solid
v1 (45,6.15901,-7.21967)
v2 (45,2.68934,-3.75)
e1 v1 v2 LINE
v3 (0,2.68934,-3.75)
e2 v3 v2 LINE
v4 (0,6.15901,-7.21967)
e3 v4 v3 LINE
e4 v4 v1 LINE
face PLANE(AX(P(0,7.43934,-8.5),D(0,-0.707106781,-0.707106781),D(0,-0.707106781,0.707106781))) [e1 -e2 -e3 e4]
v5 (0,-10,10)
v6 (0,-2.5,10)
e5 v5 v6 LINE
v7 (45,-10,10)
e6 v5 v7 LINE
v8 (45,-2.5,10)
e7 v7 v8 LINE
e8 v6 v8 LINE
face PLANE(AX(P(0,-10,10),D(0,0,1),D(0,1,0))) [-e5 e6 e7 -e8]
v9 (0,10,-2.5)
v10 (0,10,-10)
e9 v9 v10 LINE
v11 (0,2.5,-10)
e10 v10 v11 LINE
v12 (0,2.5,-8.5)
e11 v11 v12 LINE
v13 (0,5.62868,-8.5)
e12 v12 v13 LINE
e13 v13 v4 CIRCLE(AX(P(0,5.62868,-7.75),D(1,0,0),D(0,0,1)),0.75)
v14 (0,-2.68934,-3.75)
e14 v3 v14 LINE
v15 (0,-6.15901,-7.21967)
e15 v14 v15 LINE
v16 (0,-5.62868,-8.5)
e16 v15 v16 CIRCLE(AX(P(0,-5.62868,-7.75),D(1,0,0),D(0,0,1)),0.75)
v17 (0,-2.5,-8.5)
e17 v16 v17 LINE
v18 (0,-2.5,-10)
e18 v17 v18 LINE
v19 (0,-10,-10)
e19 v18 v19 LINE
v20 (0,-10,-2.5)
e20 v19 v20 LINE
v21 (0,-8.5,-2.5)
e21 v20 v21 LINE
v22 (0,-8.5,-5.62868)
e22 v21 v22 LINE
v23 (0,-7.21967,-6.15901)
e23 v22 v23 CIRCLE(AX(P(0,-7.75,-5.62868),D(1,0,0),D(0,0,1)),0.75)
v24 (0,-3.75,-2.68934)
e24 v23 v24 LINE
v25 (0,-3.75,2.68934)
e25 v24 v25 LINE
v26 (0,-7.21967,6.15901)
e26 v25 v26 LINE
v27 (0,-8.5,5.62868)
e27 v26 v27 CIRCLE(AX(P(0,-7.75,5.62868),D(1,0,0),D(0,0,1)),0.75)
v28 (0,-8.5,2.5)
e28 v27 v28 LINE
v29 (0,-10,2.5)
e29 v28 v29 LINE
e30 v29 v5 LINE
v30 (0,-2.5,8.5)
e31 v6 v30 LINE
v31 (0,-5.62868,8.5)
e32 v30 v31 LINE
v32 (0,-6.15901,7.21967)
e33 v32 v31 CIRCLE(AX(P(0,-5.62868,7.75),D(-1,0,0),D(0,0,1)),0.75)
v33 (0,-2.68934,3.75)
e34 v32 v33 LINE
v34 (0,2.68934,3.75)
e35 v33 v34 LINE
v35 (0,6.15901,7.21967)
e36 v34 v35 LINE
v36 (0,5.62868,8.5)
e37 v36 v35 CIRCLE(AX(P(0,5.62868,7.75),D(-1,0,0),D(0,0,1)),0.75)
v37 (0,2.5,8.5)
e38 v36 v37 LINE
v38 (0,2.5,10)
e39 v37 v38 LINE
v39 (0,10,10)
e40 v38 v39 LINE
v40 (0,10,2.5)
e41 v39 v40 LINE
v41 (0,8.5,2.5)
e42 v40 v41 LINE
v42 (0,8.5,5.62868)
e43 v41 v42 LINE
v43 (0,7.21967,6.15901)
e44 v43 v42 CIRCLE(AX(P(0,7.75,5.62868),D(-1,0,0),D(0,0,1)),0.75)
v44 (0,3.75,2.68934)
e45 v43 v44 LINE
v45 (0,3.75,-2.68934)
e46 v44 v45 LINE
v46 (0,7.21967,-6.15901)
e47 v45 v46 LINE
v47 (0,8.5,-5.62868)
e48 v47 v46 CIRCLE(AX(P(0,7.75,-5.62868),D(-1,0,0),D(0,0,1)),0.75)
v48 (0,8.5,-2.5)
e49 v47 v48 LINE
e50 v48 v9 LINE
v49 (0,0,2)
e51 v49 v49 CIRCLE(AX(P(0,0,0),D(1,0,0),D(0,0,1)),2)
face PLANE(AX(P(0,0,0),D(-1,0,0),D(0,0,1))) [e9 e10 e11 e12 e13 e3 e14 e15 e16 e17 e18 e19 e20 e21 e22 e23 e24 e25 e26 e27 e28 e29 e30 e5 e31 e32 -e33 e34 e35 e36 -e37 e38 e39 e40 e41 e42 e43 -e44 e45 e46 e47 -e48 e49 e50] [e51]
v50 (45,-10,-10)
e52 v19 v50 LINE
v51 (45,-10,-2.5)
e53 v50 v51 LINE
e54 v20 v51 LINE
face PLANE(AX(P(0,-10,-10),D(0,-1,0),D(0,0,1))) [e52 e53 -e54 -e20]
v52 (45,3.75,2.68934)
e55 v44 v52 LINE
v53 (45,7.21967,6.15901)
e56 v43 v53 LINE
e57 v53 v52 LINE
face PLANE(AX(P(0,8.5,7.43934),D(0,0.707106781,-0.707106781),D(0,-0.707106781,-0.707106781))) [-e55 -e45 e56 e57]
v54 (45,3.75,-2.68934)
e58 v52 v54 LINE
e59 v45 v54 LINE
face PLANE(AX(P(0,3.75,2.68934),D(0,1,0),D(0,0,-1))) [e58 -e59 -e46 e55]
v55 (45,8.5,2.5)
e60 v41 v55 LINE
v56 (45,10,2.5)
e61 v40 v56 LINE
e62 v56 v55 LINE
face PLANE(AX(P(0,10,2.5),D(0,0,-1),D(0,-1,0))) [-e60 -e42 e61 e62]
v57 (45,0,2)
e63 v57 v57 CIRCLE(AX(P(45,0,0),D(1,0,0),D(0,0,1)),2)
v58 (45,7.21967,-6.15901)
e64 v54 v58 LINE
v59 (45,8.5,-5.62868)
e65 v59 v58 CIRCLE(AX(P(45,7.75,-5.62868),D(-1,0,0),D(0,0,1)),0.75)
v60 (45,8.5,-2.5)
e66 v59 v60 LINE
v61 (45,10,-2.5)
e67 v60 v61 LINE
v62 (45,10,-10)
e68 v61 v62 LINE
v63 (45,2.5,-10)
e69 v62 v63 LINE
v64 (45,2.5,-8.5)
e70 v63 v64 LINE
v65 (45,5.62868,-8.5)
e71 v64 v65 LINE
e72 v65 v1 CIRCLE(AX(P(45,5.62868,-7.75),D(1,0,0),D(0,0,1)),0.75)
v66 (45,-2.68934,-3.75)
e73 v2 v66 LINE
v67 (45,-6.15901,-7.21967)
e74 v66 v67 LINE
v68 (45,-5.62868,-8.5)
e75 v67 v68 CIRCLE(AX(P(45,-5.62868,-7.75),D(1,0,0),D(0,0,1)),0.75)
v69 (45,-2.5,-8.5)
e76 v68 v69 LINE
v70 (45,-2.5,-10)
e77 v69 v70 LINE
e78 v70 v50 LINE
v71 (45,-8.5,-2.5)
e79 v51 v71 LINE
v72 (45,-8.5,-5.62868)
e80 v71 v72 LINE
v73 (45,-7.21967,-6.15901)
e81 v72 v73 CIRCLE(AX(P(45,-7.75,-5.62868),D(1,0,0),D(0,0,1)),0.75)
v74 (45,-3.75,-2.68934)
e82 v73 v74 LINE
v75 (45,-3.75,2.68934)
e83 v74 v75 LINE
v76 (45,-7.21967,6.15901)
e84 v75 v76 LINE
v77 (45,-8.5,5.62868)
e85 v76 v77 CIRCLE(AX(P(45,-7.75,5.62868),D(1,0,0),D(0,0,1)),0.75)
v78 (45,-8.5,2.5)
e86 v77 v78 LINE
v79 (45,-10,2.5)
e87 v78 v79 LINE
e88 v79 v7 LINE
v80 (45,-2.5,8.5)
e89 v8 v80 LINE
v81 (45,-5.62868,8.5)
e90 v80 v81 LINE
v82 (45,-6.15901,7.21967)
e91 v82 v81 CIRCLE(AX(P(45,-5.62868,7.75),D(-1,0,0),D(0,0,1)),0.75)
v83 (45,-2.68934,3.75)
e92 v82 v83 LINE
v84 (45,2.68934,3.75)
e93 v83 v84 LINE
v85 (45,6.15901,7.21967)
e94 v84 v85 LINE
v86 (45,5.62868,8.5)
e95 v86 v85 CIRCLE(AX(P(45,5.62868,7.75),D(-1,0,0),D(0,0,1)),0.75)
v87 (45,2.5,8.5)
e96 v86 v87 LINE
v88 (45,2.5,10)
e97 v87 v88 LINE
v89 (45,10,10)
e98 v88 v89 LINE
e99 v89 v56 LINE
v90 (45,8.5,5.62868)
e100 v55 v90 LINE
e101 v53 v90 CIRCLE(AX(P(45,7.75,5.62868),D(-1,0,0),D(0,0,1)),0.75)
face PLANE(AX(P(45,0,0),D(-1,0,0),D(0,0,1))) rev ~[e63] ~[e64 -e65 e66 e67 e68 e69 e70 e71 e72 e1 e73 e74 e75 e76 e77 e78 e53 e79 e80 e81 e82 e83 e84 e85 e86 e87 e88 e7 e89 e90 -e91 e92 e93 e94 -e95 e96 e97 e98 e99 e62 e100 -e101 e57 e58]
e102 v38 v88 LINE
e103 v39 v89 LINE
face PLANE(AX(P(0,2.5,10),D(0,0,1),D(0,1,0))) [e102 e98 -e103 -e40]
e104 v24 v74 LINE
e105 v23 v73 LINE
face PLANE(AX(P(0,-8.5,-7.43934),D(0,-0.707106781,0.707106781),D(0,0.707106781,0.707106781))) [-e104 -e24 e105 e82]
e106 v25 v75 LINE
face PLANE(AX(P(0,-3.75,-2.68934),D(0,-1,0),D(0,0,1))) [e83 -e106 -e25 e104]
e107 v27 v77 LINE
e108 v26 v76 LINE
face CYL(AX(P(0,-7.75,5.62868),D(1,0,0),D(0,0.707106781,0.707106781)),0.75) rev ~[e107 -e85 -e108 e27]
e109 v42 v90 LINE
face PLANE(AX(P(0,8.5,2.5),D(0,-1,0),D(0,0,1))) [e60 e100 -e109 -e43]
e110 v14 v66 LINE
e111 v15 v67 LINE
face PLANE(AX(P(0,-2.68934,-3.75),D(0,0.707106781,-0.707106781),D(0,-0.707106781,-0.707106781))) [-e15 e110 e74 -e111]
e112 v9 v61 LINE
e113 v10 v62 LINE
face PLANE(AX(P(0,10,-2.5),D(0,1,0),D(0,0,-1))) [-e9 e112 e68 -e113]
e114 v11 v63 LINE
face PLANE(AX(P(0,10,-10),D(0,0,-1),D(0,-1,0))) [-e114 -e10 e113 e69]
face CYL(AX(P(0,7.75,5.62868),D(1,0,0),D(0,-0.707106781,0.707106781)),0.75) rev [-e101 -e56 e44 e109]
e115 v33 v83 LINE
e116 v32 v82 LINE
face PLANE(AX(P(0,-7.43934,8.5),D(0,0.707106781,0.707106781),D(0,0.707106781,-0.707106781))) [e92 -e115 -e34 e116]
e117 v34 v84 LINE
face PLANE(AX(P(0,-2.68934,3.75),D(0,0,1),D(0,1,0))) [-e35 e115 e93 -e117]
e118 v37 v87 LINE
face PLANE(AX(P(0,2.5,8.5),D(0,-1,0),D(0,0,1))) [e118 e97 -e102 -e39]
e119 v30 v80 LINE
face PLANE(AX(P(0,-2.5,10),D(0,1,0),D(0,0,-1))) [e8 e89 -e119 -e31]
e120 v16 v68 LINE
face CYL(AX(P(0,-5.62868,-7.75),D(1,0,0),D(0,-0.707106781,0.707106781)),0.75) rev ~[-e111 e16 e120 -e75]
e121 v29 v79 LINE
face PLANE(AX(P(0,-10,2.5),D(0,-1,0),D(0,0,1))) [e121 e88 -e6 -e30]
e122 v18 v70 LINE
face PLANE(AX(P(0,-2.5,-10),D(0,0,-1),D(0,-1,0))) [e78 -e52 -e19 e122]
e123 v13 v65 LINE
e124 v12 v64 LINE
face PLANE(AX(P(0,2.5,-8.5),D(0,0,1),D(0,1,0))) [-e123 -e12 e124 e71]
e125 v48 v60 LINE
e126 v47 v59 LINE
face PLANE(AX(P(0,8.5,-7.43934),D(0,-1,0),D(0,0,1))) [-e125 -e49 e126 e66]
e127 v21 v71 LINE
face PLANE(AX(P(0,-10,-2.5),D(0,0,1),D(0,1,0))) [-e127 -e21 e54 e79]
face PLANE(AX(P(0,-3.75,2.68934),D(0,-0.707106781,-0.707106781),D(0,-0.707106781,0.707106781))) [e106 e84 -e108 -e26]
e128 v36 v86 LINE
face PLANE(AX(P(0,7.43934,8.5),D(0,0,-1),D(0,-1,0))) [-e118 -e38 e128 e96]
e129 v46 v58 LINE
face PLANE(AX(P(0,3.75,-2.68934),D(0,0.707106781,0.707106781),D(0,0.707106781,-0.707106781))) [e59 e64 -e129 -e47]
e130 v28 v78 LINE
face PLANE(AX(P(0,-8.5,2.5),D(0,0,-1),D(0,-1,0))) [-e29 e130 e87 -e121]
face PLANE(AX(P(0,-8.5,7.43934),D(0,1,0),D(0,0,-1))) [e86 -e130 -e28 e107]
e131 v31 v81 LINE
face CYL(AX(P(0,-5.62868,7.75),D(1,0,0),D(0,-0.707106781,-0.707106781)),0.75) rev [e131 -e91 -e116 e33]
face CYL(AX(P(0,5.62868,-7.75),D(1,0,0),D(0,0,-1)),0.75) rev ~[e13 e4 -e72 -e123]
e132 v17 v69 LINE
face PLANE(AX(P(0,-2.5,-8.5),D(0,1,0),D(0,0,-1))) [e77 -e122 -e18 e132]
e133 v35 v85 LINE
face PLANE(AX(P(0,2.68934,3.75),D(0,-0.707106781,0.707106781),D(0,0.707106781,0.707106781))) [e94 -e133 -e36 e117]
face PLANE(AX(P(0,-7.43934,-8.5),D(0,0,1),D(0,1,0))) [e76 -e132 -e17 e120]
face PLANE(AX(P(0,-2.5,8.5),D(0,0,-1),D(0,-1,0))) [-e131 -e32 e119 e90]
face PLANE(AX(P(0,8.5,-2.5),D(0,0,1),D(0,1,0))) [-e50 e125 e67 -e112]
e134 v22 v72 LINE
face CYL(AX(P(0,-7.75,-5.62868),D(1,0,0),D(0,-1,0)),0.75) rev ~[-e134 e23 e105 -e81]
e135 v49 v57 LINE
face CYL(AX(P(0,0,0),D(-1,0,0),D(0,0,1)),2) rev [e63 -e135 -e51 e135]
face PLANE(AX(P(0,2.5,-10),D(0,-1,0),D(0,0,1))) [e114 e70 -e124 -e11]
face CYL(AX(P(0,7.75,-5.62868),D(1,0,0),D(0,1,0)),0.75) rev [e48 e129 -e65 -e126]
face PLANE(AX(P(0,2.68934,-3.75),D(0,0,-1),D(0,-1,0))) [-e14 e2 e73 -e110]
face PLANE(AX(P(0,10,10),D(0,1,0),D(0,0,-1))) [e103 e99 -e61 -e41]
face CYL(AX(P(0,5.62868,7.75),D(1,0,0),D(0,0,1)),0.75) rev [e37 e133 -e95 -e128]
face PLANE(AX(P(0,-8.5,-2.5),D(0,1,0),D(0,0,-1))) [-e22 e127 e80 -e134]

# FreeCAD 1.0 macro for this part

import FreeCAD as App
import Part
import Sketcher
from FreeCAD import Vector
Q = App.Units.Quantity


def edges_at(feature, points):
    """Names of the edges that pass closest to the given points."""
    edges = feature.Shape.Edges
    near = lambda p: min(range(len(edges)), key=lambda i: edges[i].distToShape(Part.Vertex(*p))[0])
    return sorted({f"Edge{near(p) + 1}" for p in points})

doc = App.newDocument("Part")
body = doc.addObject("PartDesign::Body", "Body")

# Sketch on YZ plane
sketch1 = body.newObject("Sketcher::SketchObject", "Sketch")
sketch1.AttachmentSupport = (doc.getObject("YZ_Plane"), [""])
sketch1.MapMode = "FlatFace"
sketch1.addGeometry([
    Part.LineSegment(Vector(10, -10, 0), Vector(10, -2.5, 0)),  # 0
    Part.LineSegment(Vector(10, -2.5, 0), Vector(8.5, -2.5, 0)),  # 1
    Part.LineSegment(Vector(8.5, -2.5, 0), Vector(8.5, -7.43934, 0)),  # 2
    Part.LineSegment(Vector(8.5, -7.43934, 0), Vector(3.75, -2.68934, 0)),  # 3
    Part.LineSegment(Vector(3.75, -2.68934, 0), Vector(3.75, 2.68934, 0)),  # 4
    Part.LineSegment(Vector(3.75, 2.68934, 0), Vector(8.5, 7.43934, 0)),  # 5
    Part.LineSegment(Vector(8.5, 7.43934, 0), Vector(8.5, 2.5, 0)),  # 6
    Part.LineSegment(Vector(8.5, 2.5, 0), Vector(10, 2.5, 0)),  # 7
    Part.LineSegment(Vector(10, 2.5, 0), Vector(10, 10, 0)),  # 8
    Part.LineSegment(Vector(10, 10, 0), Vector(2.5, 10, 0)),  # 9
    Part.LineSegment(Vector(2.5, 10, 0), Vector(2.5, 8.5, 0)),  # 10
    Part.LineSegment(Vector(2.5, 8.5, 0), Vector(7.43934, 8.5, 0)),  # 11
    Part.LineSegment(Vector(7.43934, 8.5, 0), Vector(2.68934, 3.75, 0)),  # 12
    Part.LineSegment(Vector(2.68934, 3.75, 0), Vector(-2.68934, 3.75, 0)),  # 13
    Part.LineSegment(Vector(-2.68934, 3.75, 0), Vector(-7.43934, 8.5, 0)),  # 14
    Part.LineSegment(Vector(-7.43934, 8.5, 0), Vector(-2.5, 8.5, 0)),  # 15
    Part.LineSegment(Vector(-2.5, 8.5, 0), Vector(-2.5, 10, 0)),  # 16
    Part.LineSegment(Vector(-2.5, 10, 0), Vector(-10, 10, 0)),  # 17
    Part.LineSegment(Vector(-10, 10, 0), Vector(-10, 2.5, 0)),  # 18
    Part.LineSegment(Vector(-10, 2.5, 0), Vector(-8.5, 2.5, 0)),  # 19
    Part.LineSegment(Vector(-8.5, 2.5, 0), Vector(-8.5, 7.43934, 0)),  # 20
    Part.LineSegment(Vector(-8.5, 7.43934, 0), Vector(-3.75, 2.68934, 0)),  # 21
    Part.LineSegment(Vector(-3.75, 2.68934, 0), Vector(-3.75, -2.68934, 0)),  # 22
    Part.LineSegment(Vector(-3.75, -2.68934, 0), Vector(-8.5, -7.43934, 0)),  # 23
    Part.LineSegment(Vector(-8.5, -7.43934, 0), Vector(-8.5, -2.5, 0)),  # 24
    Part.LineSegment(Vector(-8.5, -2.5, 0), Vector(-10, -2.5, 0)),  # 25
    Part.LineSegment(Vector(-10, -2.5, 0), Vector(-10, -10, 0)),  # 26
    Part.LineSegment(Vector(-10, -10, 0), Vector(-2.5, -10, 0)),  # 27
    Part.LineSegment(Vector(-2.5, -10, 0), Vector(-2.5, -8.5, 0)),  # 28
    Part.LineSegment(Vector(-2.5, -8.5, 0), Vector(-7.43934, -8.5, 0)),  # 29
    Part.LineSegment(Vector(-7.43934, -8.5, 0), Vector(-2.68934, -3.75, 0)),  # 30
    Part.LineSegment(Vector(-2.68934, -3.75, 0), Vector(2.68934, -3.75, 0)),  # 31
    Part.LineSegment(Vector(2.68934, -3.75, 0), Vector(7.43934, -8.5, 0)),  # 32
    Part.LineSegment(Vector(7.43934, -8.5, 0), Vector(2.5, -8.5, 0)),  # 33
    Part.LineSegment(Vector(2.5, -8.5, 0), Vector(2.5, -10, 0)),  # 34
    Part.LineSegment(Vector(2.5, -10, 0), Vector(10, -10, 0)),  # 35
    Part.Circle(Vector(0, 0, 0), Vector(0, 0, 1), 2),  # 36
], False)
sketch1.addConstraint([
    Sketcher.Constraint("Coincident", 0, 2, 1, 1),
    Sketcher.Constraint("Coincident", 1, 2, 2, 1),
    Sketcher.Constraint("Coincident", 2, 2, 3, 1),
    Sketcher.Constraint("Coincident", 3, 2, 4, 1),
    Sketcher.Constraint("Coincident", 4, 2, 5, 1),
    Sketcher.Constraint("Coincident", 5, 2, 6, 1),
    Sketcher.Constraint("Coincident", 6, 2, 7, 1),
    Sketcher.Constraint("Coincident", 7, 2, 8, 1),
    Sketcher.Constraint("Coincident", 8, 2, 9, 1),
    Sketcher.Constraint("Coincident", 9, 2, 10, 1),
    Sketcher.Constraint("Coincident", 10, 2, 11, 1),
    Sketcher.Constraint("Coincident", 11, 2, 12, 1),
    Sketcher.Constraint("Coincident", 12, 2, 13, 1),
    Sketcher.Constraint("Coincident", 13, 2, 14, 1),
    Sketcher.Constraint("Coincident", 14, 2, 15, 1),
    Sketcher.Constraint("Coincident", 15, 2, 16, 1),
    Sketcher.Constraint("Coincident", 16, 2, 17, 1),
    Sketcher.Constraint("Coincident", 17, 2, 18, 1),
    Sketcher.Constraint("Coincident", 18, 2, 19, 1),
    Sketcher.Constraint("Coincident", 19, 2, 20, 1),
    Sketcher.Constraint("Coincident", 20, 2, 21, 1),
    Sketcher.Constraint("Coincident", 21, 2, 22, 1),
    Sketcher.Constraint("Coincident", 22, 2, 23, 1),
    Sketcher.Constraint("Coincident", 23, 2, 24, 1),
    Sketcher.Constraint("Coincident", 24, 2, 25, 1),
    Sketcher.Constraint("Coincident", 25, 2, 26, 1),
    Sketcher.Constraint("Coincident", 26, 2, 27, 1),
    Sketcher.Constraint("Coincident", 27, 2, 28, 1),
    Sketcher.Constraint("Coincident", 28, 2, 29, 1),
    Sketcher.Constraint("Coincident", 29, 2, 30, 1),
    Sketcher.Constraint("Coincident", 30, 2, 31, 1),
    Sketcher.Constraint("Coincident", 31, 2, 32, 1),
    Sketcher.Constraint("Coincident", 32, 2, 33, 1),
    Sketcher.Constraint("Coincident", 33, 2, 34, 1),
    Sketcher.Constraint("Coincident", 34, 2, 35, 1),
    Sketcher.Constraint("Coincident", 35, 2, 0, 1),
    Sketcher.Constraint("Vertical", 0),
    Sketcher.Constraint("Horizontal", 1),
    Sketcher.Constraint("Vertical", 2),
    Sketcher.Constraint("Vertical", 4),
    Sketcher.Constraint("Vertical", 6),
    Sketcher.Constraint("Horizontal", 7),
    Sketcher.Constraint("Vertical", 8),
    Sketcher.Constraint("Horizontal", 9),
    Sketcher.Constraint("Vertical", 10),
    Sketcher.Constraint("Horizontal", 11),
    Sketcher.Constraint("Horizontal", 13),
    Sketcher.Constraint("Horizontal", 15),
    Sketcher.Constraint("Vertical", 16),
    Sketcher.Constraint("Horizontal", 17),
    Sketcher.Constraint("Vertical", 18),
    Sketcher.Constraint("Horizontal", 19),
    Sketcher.Constraint("Vertical", 20),
    Sketcher.Constraint("Vertical", 22),
    Sketcher.Constraint("Vertical", 24),
    Sketcher.Constraint("Horizontal", 25),
    Sketcher.Constraint("Vertical", 26),
    Sketcher.Constraint("Horizontal", 27),
    Sketcher.Constraint("Vertical", 28),
    Sketcher.Constraint("Horizontal", 29),
    Sketcher.Constraint("Horizontal", 31),
    Sketcher.Constraint("Horizontal", 33),
    Sketcher.Constraint("Vertical", 34),
    Sketcher.Constraint("Horizontal", 35),
    Sketcher.Constraint("Coincident", 36, 3, -1, 1),
    Sketcher.Constraint("Symmetric", 0, 2, 18, 2, -1, 1),
    Sketcher.Constraint("Symmetric", 2, 2, 20, 2, -1, 1),
    Sketcher.Constraint("Symmetric", 3, 2, 21, 2, -1, 1),
    Sketcher.Constraint("Symmetric", 5, 2, 23, 2, -1, 1),
    Sketcher.Constraint("Symmetric", 7, 2, 25, 2, -1, 1),
    Sketcher.Constraint("Symmetric", 9, 2, 27, 2, -1, 1),
    Sketcher.Constraint("Symmetric", 11, 2, 29, 2, -1, 1),
    Sketcher.Constraint("Symmetric", 12, 2, 30, 2, -1, 1),
    Sketcher.Constraint("Symmetric", 14, 2, 32, 2, -1, 1),
    Sketcher.Constraint("Symmetric", 16, 2, 34, 2, -1, 1),
    Sketcher.Constraint("Symmetric", 11, 2, 14, 2, -2),
    Sketcher.Constraint("Symmetric", 9, 2, 16, 2, -2),
    Sketcher.Constraint("Symmetric", 7, 2, 18, 2, -2),
    Sketcher.Constraint("Symmetric", 5, 2, 20, 2, -2),
    Sketcher.Constraint("Perpendicular", 3, 5),
    Sketcher.Constraint("Parallel", 5, 12),
    Sketcher.Constraint("Perpendicular", 12, 14),
    Sketcher.Constraint("Perpendicular", 21, 23),
    Sketcher.Constraint("Perpendicular", 30, 32),
    Sketcher.Constraint("Horizontal", 4, 2, 21, 2),
    Sketcher.Constraint("Equal", 35, 0),
    Sketcher.Constraint("Equal", 33, 2),
    Sketcher.Constraint("Equal", 31, 4),
    Sketcher.Constraint("Equal", 25, 10),
    Sketcher.Constraint("Equal", 5, 12),
    Sketcher.Constraint("Diameter", 36, Q("4 mm")),
    Sketcher.Constraint("DistanceX", 1, 2, 1, 1, Q("1.5 mm")),
    Sketcher.Constraint("DistanceX", 9, 2, 9, 1, Q("7.5 mm")),
    Sketcher.Constraint("DistanceX", -1, 1, 0, 2, Q("10 mm")),
    Sketcher.Constraint("DistanceX", 22, 2, 3, 2, Q("7.5 mm")),
    Sketcher.Constraint("DistanceX", 11, 1, 11, 2, Q("4.93934 mm")),
])
pad1 = body.newObject("PartDesign::Pad", "Pad")
pad1.Profile = sketch1
pad1.Length = 45
doc.recompute()

fillet = body.newObject("PartDesign::Fillet", "Fillet")
fillet.Base = (pad1, edges_at(pad1, [
    (22.5, 7.439, -8.5),
    (22.5, -7.439, -8.5),
    (22.5, -8.5, -7.439),
    (22.5, -8.5, 7.439),
    (22.5, -7.439, 8.5),
    (22.5, 7.439, 8.5),
    (22.5, 8.5, 7.439),
    (22.5, 8.5, -7.439),
]))
fillet.Radius = 0.75

doc.recompute()
